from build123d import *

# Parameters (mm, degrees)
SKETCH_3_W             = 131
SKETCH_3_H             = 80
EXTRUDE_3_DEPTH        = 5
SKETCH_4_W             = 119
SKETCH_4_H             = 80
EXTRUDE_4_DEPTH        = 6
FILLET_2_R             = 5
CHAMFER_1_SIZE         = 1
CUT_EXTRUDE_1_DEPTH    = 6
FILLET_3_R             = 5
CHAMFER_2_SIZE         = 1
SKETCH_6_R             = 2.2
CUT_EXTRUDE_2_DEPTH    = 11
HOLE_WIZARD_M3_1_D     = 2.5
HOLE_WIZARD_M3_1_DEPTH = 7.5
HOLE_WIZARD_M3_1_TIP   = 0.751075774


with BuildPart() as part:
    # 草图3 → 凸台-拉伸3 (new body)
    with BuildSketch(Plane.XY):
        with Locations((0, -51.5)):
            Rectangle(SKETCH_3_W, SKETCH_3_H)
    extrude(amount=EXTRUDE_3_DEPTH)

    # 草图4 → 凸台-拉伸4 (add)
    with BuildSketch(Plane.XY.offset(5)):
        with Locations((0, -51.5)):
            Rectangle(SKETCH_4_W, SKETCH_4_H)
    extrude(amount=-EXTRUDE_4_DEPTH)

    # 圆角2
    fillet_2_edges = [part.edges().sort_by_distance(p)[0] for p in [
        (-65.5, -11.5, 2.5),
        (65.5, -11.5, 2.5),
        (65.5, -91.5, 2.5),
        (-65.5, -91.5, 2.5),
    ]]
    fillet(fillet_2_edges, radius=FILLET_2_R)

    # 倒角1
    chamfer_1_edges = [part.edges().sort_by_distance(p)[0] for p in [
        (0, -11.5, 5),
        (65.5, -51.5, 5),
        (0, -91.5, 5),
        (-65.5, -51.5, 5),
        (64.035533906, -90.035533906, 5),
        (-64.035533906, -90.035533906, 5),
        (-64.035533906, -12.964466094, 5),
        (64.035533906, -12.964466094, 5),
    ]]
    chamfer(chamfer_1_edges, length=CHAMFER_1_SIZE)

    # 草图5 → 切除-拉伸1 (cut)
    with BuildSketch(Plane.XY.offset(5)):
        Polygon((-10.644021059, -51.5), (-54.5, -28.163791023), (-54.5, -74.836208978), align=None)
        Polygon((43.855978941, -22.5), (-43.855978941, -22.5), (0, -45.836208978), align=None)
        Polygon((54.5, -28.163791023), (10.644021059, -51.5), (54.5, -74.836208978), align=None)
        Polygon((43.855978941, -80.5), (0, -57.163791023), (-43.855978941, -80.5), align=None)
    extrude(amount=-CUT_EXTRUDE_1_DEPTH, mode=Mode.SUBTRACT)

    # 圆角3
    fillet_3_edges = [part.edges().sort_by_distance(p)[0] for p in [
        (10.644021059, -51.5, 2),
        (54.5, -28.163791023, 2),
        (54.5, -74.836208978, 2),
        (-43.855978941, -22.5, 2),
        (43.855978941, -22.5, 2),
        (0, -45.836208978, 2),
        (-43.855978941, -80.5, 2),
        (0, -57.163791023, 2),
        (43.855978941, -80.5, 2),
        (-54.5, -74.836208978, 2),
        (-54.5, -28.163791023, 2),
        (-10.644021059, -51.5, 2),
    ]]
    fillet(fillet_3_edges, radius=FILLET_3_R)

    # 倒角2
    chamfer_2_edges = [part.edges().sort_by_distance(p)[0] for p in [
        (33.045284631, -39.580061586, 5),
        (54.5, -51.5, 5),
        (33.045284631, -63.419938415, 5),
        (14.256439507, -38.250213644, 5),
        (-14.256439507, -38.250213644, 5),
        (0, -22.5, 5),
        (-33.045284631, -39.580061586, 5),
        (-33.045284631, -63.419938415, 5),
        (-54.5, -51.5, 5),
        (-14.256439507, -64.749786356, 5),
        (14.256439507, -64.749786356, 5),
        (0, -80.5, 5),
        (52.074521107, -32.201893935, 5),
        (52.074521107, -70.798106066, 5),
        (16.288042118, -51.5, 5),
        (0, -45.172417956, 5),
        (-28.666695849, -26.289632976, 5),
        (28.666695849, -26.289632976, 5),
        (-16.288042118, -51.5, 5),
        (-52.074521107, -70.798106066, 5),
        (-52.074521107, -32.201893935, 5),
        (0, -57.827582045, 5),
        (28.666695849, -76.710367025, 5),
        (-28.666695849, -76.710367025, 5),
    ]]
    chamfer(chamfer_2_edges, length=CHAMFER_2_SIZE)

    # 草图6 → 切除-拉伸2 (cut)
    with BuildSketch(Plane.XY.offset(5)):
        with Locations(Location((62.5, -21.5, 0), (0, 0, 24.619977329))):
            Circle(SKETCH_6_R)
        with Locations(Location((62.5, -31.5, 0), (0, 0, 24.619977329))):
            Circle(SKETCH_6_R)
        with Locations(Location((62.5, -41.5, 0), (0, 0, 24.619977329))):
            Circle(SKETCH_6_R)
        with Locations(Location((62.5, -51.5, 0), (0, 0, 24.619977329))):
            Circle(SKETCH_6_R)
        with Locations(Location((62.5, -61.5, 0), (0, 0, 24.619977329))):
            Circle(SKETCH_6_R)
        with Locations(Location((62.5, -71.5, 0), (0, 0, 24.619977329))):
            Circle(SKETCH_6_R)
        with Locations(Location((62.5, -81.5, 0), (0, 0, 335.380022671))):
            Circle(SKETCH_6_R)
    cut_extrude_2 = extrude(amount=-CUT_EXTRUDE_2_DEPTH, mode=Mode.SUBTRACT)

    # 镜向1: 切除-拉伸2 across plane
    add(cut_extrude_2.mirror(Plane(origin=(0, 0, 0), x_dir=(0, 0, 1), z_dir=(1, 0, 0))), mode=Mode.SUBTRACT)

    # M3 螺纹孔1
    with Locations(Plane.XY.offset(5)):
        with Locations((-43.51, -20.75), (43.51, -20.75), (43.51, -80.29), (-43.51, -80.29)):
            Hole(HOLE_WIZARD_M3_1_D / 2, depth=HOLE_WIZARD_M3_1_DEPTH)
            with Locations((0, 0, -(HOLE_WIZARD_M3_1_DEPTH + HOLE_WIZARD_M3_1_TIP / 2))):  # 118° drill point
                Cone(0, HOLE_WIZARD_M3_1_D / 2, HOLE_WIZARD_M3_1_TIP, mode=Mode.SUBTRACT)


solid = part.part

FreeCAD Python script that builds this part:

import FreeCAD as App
import Part
import Sketcher
from FreeCAD import Vector


def edges_at(feature, points):
    """Names of the edges that pass closest to the given points."""
    edges = feature.Shape.Edges
    near = lambda p: min(range(len(edges)), key=lambda i: edges[i].distToShape(Part.Vertex(*p))[0])
    return sorted({f"Edge{near(p) + 1}" for p in points})

doc = App.newDocument("Part")
body = doc.addObject("PartDesign::Body", "Body")

# Sketch on XY plane
sketch1 = body.newObject("Sketcher::SketchObject", "Sketch")
sketch1.AttachmentSupport = (doc.getObject("XY_Plane"), [""])
sketch1.MapMode = "FlatFace"
sketch1.addGeometry([
    Part.LineSegment(Vector(-66, -12, 0), Vector(-66, -92, 0)),
    Part.LineSegment(Vector(-66, -92, 0), Vector(66, -92, 0)),
    Part.LineSegment(Vector(66, -92, 0), Vector(66, -12, 0)),
    Part.LineSegment(Vector(66, -12, 0), Vector(-66, -12, 0)),
], False)
sketch1.addConstraint([
    Sketcher.Constraint("Coincident", 0, 2, 1, 1),
    Sketcher.Constraint("Coincident", 1, 2, 2, 1),
    Sketcher.Constraint("Coincident", 2, 2, 3, 1),
    Sketcher.Constraint("Coincident", 3, 2, 0, 1),
    Sketcher.Constraint("Vertical", 0),
    Sketcher.Constraint("Horizontal", 1),
    Sketcher.Constraint("Vertical", 2),
    Sketcher.Constraint("Horizontal", 3),
    Sketcher.Constraint("DistanceX", 1, 1, 1, 2, 131.0),
    Sketcher.Constraint("DistanceY", 0, 2, 0, 1, 80.0),
    Sketcher.Constraint("DistanceX", 0, 2, -1, 1, 65.5),
    Sketcher.Constraint("DistanceY", 0, 2, -1, 1, 91.5),
])
pad1 = body.newObject("PartDesign::Pad", "Pad")
pad1.Profile = sketch1
pad1.Length = 5

# Sketch on XY plane
sketch2 = body.newObject("Sketcher::SketchObject", "Sketch001")
sketch2.AttachmentSupport = (doc.getObject("XY_Plane"), [""])
sketch2.MapMode = "FlatFace"
sketch2.AttachmentOffset = App.Placement(Vector(0, 0, 5), App.Rotation())
sketch2.addGeometry([
    Part.LineSegment(Vector(-60, -12, 0), Vector(-60, -92, 0)),
    Part.LineSegment(Vector(-60, -92, 0), Vector(60, -92, 0)),
    Part.LineSegment(Vector(60, -92, 0), Vector(60, -12, 0)),
    Part.LineSegment(Vector(60, -12, 0), Vector(-60, -12, 0)),
], False)
sketch2.addConstraint([
    Sketcher.Constraint("Coincident", 0, 2, 1, 1),
    Sketcher.Constraint("Coincident", 1, 2, 2, 1),
    Sketcher.Constraint("Coincident", 2, 2, 3, 1),
    Sketcher.Constraint("Coincident", 3, 2, 0, 1),
    Sketcher.Constraint("Vertical", 0),
    Sketcher.Constraint("Horizontal", 1),
    Sketcher.Constraint("Vertical", 2),
    Sketcher.Constraint("Horizontal", 3),
    Sketcher.Constraint("DistanceX", 1, 1, 1, 2, 119.0),
    Sketcher.Constraint("DistanceY", 0, 2, 0, 1, 80.0),
    Sketcher.Constraint("DistanceX", 0, 2, -1, 1, 59.5),
    Sketcher.Constraint("DistanceY", 0, 2, -1, 1, 91.5),
])
pad2 = body.newObject("PartDesign::Pad", "Pad001")
pad2.Profile = sketch2
pad2.Length = 6
pad2.Reversed = True
doc.recompute()

fillet = body.newObject("PartDesign::Fillet", "Fillet")
fillet.Base = (pad2, edges_at(pad2, [
    (-65.5, -11.5, 2.5),
    (65.5, -11.5, 2.5),
    (65.5, -91.5, 2.5),
    (-65.5, -91.5, 2.5),
]))
fillet.Radius = 5
doc.recompute()

chamfer = body.newObject("PartDesign::Chamfer", "Chamfer")
chamfer.Base = (fillet, edges_at(fillet, [
    (0, -11.5, 5),
    (65.5, -51.5, 5),
    (0, -91.5, 5),
    (-65.5, -51.5, 5),
    (64.036, -90.036, 5),
    (-64.036, -90.036, 5),
    (-64.036, -12.964, 5),
    (64.036, -12.964, 5),
]))
chamfer.Size = 1

# Sketch on XY plane
sketch3 = body.newObject("Sketcher::SketchObject", "Sketch002")
sketch3.AttachmentSupport = (doc.getObject("XY_Plane"), [""])
sketch3.MapMode = "FlatFace"
sketch3.AttachmentOffset = App.Placement(Vector(0, 0, 5), App.Rotation())
sketch3.addGeometry([
    Part.LineSegment(Vector(-11, -52, 0), Vector(-54, -28, 0)),  # 0
    Part.LineSegment(Vector(-54, -28, 0), Vector(-54, -75, 0)),  # 1
    Part.LineSegment(Vector(-54, -75, 0), Vector(-11, -52, 0)),  # 2
    Part.LineSegment(Vector(44, -22, 0), Vector(-44, -22, 0)),  # 3
    Part.LineSegment(Vector(-44, -22, 0), Vector(0, -46, 0)),  # 4
    Part.LineSegment(Vector(0, -46, 0), Vector(44, -22, 0)),  # 5
    Part.LineSegment(Vector(54, -28, 0), Vector(11, -52, 0)),  # 6
    Part.LineSegment(Vector(11, -52, 0), Vector(54, -75, 0)),  # 7
    Part.LineSegment(Vector(54, -75, 0), Vector(54, -28, 0)),  # 8
    Part.LineSegment(Vector(44, -80, 0), Vector(0, -57, 0)),  # 9
    Part.LineSegment(Vector(0, -57, 0), Vector(-44, -80, 0)),  # 10
    Part.LineSegment(Vector(-44, -80, 0), Vector(44, -80, 0)),  # 11
], False)
sketch3.addConstraint([
    Sketcher.Constraint("Coincident", 0, 2, 1, 1),
    Sketcher.Constraint("Coincident", 1, 2, 2, 1),
    Sketcher.Constraint("Coincident", 2, 2, 0, 1),
    Sketcher.Constraint("Coincident", 3, 2, 4, 1),
    Sketcher.Constraint("Coincident", 4, 2, 5, 1),
    Sketcher.Constraint("Coincident", 5, 2, 3, 1),
    Sketcher.Constraint("Coincident", 6, 2, 7, 1),
    Sketcher.Constraint("Coincident", 7, 2, 8, 1),
    Sketcher.Constraint("Coincident", 8, 2, 6, 1),
    Sketcher.Constraint("Coincident", 9, 2, 10, 1),
    Sketcher.Constraint("Coincident", 10, 2, 11, 1),
    Sketcher.Constraint("Coincident", 11, 2, 9, 1),
    Sketcher.Constraint("Vertical", 1),
    Sketcher.Constraint("Horizontal", 3),
    Sketcher.Constraint("Vertical", 8),
    Sketcher.Constraint("Horizontal", 11),
    Sketcher.Constraint("Symmetric", 2, 2, 6, 2, -2),
    Sketcher.Constraint("Symmetric", 1, 2, 7, 2, -2),
    Sketcher.Constraint("PointOnObject", 4, 2, -2),
    Sketcher.Constraint("PointOnObject", 9, 2, -2),
    Sketcher.Constraint("Parallel", 0, 4),
    Sketcher.Constraint("Parallel", 2, 5),
    Sketcher.Constraint("Parallel", 5, 6),
    Sketcher.Constraint("Parallel", 4, 7),
    Sketcher.Constraint("Parallel", 7, 9),
    Sketcher.Constraint("Parallel", 6, 10),
    Sketcher.Constraint("Vertical", 3, 2, 10, 2),
    Sketcher.Constraint("Equal", 2, 4),
    Sketcher.Constraint("DistanceY", 2, 2, 3, 2, 29.0),
    Sketcher.Constraint("DistanceX", 1, 2, 7, 2, 109.0),
    Sketcher.Constraint("DistanceY", 10, 2, 2, 2, 29.0),
    Sketcher.Constraint("DistanceY", 2, 2, -1, 1, 51.5),
    Sketcher.Constraint("Distance", 0, 49.67822),
    Sketcher.Constraint("DistanceX", 3, 2, 3, 1, 87.711958),
])
pocket1 = body.newObject("PartDesign::Pocket", "Pocket")
pocket1.Profile = sketch3
pocket1.Length = 6
doc.recompute()

fillet2 = body.newObject("PartDesign::Fillet", "Fillet001")
fillet2.Base = (pocket1, edges_at(pocket1, [
    (10.644, -51.5, 2),
    (54.5, -28.164, 2),
    (54.5, -74.836, 2),
    (-43.856, -22.5, 2),
    (43.856, -22.5, 2),
    (0, -45.836, 2),
    (-43.856, -80.5, 2),
    (0, -57.164, 2),
    (43.856, -80.5, 2),
    (-54.5, -74.836, 2),
    (-54.5, -28.164, 2),
    (-10.644, -51.5, 2),
]))
fillet2.Radius = 5
doc.recompute()

chamfer2 = body.newObject("PartDesign::Chamfer", "Chamfer001")
chamfer2.Base = (fillet2, edges_at(fillet2, [
    (33.045, -39.58, 5),
    (54.5, -51.5, 5),
    (33.045, -63.42, 5),
    (14.256, -38.25, 5),
    (-14.256, -38.25, 5),
    (0, -22.5, 5),
    (-33.045, -39.58, 5),
    (-33.045, -63.42, 5),
    (-54.5, -51.5, 5),
    (-14.256, -64.75, 5),
    (14.256, -64.75, 5),
    (0, -80.5, 5),
    (52.075, -32.202, 5),
    (52.075, -70.798, 5),
    (16.288, -51.5, 5),
    (0, -45.172, 5),
    (-28.667, -26.29, 5),
    (28.667, -26.29, 5),
    (-16.288, -51.5, 5),
    (-52.075, -70.798, 5),
    (-52.075, -32.202, 5),
    (0, -57.828, 5),
    (28.667, -76.71, 5),
    (-28.667, -76.71, 5),
]))
chamfer2.Size = 1

# Sketch on XY plane
sketch4 = body.newObject("Sketcher::SketchObject", "Sketch003")
sketch4.AttachmentSupport = (doc.getObject("XY_Plane"), [""])
sketch4.MapMode = "FlatFace"
sketch4.AttachmentOffset = App.Placement(Vector(0, 0, 5), App.Rotation())
sketch4.addGeometry([
    Part.Circle(Vector(62.5, -21.5, 0), Vector(0, 0, 1), 2.2),  # 0
    Part.Circle(Vector(62.5, -31.5, 0), Vector(0, 0, 1), 2.2),  # 1
    Part.Circle(Vector(62.5, -41.5, 0), Vector(0, 0, 1), 2.2),  # 2
    Part.Circle(Vector(62.5, -51.5, 0), Vector(0, 0, 1), 2.2),  # 3
    Part.Circle(Vector(62.5, -61.5, 0), Vector(0, 0, 1), 2.2),  # 4
    Part.Circle(Vector(62.5, -71.5, 0), Vector(0, 0, 1), 2.2),  # 5
    Part.Circle(Vector(62.5, -81.5, 0), Vector(0, 0, 1), 2.2),  # 6
], False)
sketch4.addConstraint([
    Sketcher.Constraint("Equal", 0, 1),
    Sketcher.Constraint("Equal", 1, 2),
    Sketcher.Constraint("Equal", 2, 3),
    Sketcher.Constraint("Equal", 3, 4),
    Sketcher.Constraint("Equal", 4, 5),
    Sketcher.Constraint("Equal", 5, 6),
    Sketcher.Constraint("Vertical", 0, 3, 1, 3),
    Sketcher.Constraint("Vertical", 1, 3, 2, 3),
    Sketcher.Constraint("Vertical", 2, 3, 3, 3),
    Sketcher.Constraint("Vertical", 3, 3, 4, 3),
    Sketcher.Constraint("Vertical", 4, 3, 5, 3),
    Sketcher.Constraint("Vertical", 5, 3, 6, 3),
    Sketcher.Constraint("Diameter", 0, 4.4),
    Sketcher.Constraint("DistanceY", 1, 3, 0, 3, 10.0),
    Sketcher.Constraint("DistanceY", 2, 3, 1, 3, 10.0),
    Sketcher.Constraint("DistanceY", 3, 3, 2, 3, 10.0),
    Sketcher.Constraint("DistanceY", 4, 3, 3, 3, 10.0),
    Sketcher.Constraint("DistanceY", 5, 3, 4, 3, 10.0),
    Sketcher.Constraint("DistanceY", 6, 3, 5, 3, 10.0),
    Sketcher.Constraint("DistanceX", -1, 1, 0, 3, 62.5),
    Sketcher.Constraint("DistanceY", 0, 3, -1, 1, 21.5),
])
pocket2 = body.newObject("PartDesign::Pocket", "Pocket001")
pocket2.Profile = sketch4
pocket2.Length = 11
doc.recompute()

mirrored = body.newObject("PartDesign::Mirrored", "Mirrored")
mirrored.Originals = [pocket2]
mirrored.MirrorPlane = (doc.getObject("YZ_Plane"), [""])
body.Tip = mirrored

# Sketch on XY plane
sketch5 = body.newObject("Sketcher::SketchObject", "Sketch004")
sketch5.AttachmentSupport = (doc.getObject("XY_Plane"), [""])
sketch5.MapMode = "FlatFace"
sketch5.AttachmentOffset = App.Placement(Vector(0, 0, 5), App.Rotation())
sketch5.addGeometry([
    Part.Circle(Vector(-43.5, -20.8, 0), Vector(0, 0, 1), 1.2),
    Part.Circle(Vector(43.5, -20.8, 0), Vector(0, 0, 1), 1.2),
    Part.Circle(Vector(43.5, -80.3, 0), Vector(0, 0, 1), 1.2),
    Part.Circle(Vector(-43.5, -80.3, 0), Vector(0, 0, 1), 1.2),
], False)
sketch5.addConstraint([
    Sketcher.Constraint("Equal", 0, 1),
    Sketcher.Constraint("Equal", 1, 2),
    Sketcher.Constraint("Equal", 2, 3),
    Sketcher.Constraint("Symmetric", 0, 3, 1, 3, -2),
    Sketcher.Constraint("Symmetric", 2, 3, 3, 3, -2),
    Sketcher.Constraint("Vertical", 1, 3, 2, 3),
    Sketcher.Constraint("Diameter", 0, 2.5),
    Sketcher.Constraint("DistanceX", 0, 3, -1, 1, 43.51),
    Sketcher.Constraint("DistanceY", 0, 3, -1, 1, 20.75),
    Sketcher.Constraint("DistanceY", 2, 3, -1, 1, 80.29),
])
doc.recompute()
hole = body.newObject("PartDesign::Hole", "Hole")
hole.Profile = sketch5
hole.ThreadType = "None"
hole.Diameter = 2.5
hole.DepthType = "Dimension"
hole.Depth = 7.5
hole.DrillPoint = "Angled"
hole.DrillPointAngle = 118

doc.recompute()
